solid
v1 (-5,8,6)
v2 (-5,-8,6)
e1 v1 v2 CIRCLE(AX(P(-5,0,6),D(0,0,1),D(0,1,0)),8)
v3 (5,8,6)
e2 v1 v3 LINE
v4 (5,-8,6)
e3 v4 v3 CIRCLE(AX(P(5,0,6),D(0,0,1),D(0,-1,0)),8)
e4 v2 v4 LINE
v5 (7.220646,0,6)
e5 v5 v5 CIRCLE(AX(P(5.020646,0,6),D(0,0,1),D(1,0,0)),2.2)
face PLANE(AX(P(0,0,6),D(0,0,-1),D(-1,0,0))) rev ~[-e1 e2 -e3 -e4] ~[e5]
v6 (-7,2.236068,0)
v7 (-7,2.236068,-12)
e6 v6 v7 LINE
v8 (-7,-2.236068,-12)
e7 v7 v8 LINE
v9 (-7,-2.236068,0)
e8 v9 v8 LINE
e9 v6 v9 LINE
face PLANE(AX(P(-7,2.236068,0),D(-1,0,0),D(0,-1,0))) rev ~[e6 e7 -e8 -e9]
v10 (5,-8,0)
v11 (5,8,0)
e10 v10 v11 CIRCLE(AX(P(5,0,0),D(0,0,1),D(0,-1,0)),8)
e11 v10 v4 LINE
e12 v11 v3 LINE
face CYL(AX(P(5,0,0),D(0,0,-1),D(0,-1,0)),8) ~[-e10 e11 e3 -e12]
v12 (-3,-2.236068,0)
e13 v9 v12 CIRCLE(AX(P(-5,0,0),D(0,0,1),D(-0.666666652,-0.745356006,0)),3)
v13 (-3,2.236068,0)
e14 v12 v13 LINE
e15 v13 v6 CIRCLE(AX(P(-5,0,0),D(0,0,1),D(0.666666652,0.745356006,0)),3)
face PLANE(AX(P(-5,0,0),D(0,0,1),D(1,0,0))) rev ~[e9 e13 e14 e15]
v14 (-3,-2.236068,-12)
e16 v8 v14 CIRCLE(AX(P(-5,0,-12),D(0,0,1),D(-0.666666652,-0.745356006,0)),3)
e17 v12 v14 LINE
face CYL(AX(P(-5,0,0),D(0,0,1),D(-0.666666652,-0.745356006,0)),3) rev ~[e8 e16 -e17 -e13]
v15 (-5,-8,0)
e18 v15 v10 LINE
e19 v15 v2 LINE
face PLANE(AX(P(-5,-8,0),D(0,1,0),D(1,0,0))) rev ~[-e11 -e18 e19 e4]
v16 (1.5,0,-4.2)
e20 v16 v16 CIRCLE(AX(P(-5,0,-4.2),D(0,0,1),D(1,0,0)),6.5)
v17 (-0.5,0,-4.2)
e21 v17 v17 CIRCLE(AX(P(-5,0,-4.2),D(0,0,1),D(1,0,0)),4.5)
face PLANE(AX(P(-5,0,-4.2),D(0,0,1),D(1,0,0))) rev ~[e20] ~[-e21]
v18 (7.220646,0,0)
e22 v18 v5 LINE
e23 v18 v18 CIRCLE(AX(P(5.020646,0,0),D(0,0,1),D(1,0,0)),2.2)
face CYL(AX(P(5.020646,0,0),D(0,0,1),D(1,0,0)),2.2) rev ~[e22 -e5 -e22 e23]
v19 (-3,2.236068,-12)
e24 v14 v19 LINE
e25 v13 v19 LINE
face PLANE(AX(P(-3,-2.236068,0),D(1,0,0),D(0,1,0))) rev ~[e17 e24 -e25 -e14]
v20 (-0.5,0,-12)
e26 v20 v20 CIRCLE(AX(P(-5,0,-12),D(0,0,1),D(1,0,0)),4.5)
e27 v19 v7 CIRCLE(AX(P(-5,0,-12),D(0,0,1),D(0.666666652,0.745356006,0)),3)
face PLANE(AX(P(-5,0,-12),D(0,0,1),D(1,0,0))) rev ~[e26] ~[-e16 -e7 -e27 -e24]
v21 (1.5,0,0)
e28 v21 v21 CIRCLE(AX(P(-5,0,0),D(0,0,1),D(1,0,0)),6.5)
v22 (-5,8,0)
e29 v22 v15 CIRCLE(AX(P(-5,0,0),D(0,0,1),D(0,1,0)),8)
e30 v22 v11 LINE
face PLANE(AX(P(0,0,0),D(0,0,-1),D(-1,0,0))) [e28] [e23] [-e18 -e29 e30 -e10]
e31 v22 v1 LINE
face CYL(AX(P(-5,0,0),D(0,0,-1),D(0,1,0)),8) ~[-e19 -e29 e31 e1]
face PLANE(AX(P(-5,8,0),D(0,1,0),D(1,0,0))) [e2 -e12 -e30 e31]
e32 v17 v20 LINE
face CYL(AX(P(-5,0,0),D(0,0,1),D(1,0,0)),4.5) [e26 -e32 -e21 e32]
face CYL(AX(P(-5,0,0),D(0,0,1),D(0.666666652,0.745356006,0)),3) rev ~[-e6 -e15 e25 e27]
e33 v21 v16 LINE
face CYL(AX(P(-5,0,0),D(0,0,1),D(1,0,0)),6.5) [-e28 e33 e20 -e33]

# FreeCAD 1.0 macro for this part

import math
import FreeCAD as App
import Part
import Sketcher
from FreeCAD import Vector

doc = App.newDocument("Part")
params = doc.addObject("Spreadsheet::Sheet", "Params")
for row, (alias, value) in enumerate([
    ("sketch1_radius", "3 mm"),
    ("pad1_length", "20 mm"),
    ("sketch2_diameter", "4.4 mm"),
    ("pad2_length", "20 mm"),
    ("sketch3_diameter", "12 mm"),
    ("pad3_length", "5 mm"),
    ("sketch4_diameter", "9 mm"),
    ("pad4_length", "12 mm"),
    ("sketch5_diameter", "13 mm"),
    ("pad5_length", "4.2 mm"),
    ("sketch6_radius", "8 mm"),
    ("sketch6_width", "10 mm"),
    ("pad6_length", "6 mm"),
], start=1):
    params.set(f"A{row}", alias)
    params.set(f"B{row}", "=" + value)
    params.setAlias(f"B{row}", alias)

body = doc.addObject("PartDesign::Body", "Body")

sketch1 = body.newObject("Sketcher::SketchObject", "Sketch")
sketch1.AttachmentSupport = (doc.getObject("XY_Plane"), [""])
sketch1.MapMode = "FlatFace"
sketch1.addGeometry(Part.LineSegment(Vector(-7, 2.2, 0), Vector(-7, -2.2, 0)), False)
sketch1.addGeometry(Part.ArcOfCircle(Part.Circle(Vector(-5, 0, 0), Vector(0, 0, 1), 3), math.radians(-132), math.radians(-48)), False)
sketch1.addGeometry(Part.LineSegment(Vector(-3, -2.2, 0), Vector(-3, 2.2, 0)), False)
sketch1.addGeometry(Part.ArcOfCircle(Part.Circle(Vector(-5, 0, 0), Vector(0, 0, 1), 3), math.radians(48), math.radians(132)), False)
sketch1.addConstraint(Sketcher.Constraint("Coincident", 0, 2, 1, 1))
sketch1.addConstraint(Sketcher.Constraint("Coincident", 1, 2, 2, 1))
sketch1.addConstraint(Sketcher.Constraint("Coincident", 2, 2, 3, 1))
sketch1.addConstraint(Sketcher.Constraint("Coincident", 3, 2, 0, 1))
sketch1.addConstraint(Sketcher.Constraint("Vertical", 0))
sketch1.addConstraint(Sketcher.Constraint("Vertical", 2))
sketch1.addConstraint(Sketcher.Constraint("Coincident", 3, 3, 1, 3))
sketch1.addConstraint(Sketcher.Constraint("Equal", 1, 3))
sketch1.addConstraint(Sketcher.Constraint("PointOnObject", 1, 3, -1))
sketch1.addConstraint(Sketcher.Constraint("Horizontal", 0, 2, 1, 2))
sketch1.addConstraint(Sketcher.Constraint("Radius", 1, 3.0))
sketch1.addConstraint(Sketcher.Constraint("DistanceX", 1, 3, -1, 1, 5.0))
sketch1.addConstraint(Sketcher.Constraint("DistanceX", 0, 2, -1, 1, 7.0))
sketch1.setExpression("Constraints[10]", "Params.sketch1_radius")
pad1 = body.newObject("PartDesign::Pad", "Pad")
pad1.Profile = sketch1
pad1.setExpression("Length", "Params.pad1_length")
pad1.Reversed = True
body2 = doc.addObject("PartDesign::Body", "Body001")
body2.AllowCompound = True

sketch2 = body2.newObject("Sketcher::SketchObject", "Sketch001")
sketch2.AttachmentSupport = (doc.getObject("XY_Plane001"), [""])
sketch2.MapMode = "FlatFace"
sketch2.addGeometry(Part.Circle(Vector(5, 0, 0), Vector(0, 0, 1), 2.2), False)
sketch2.addConstraint(Sketcher.Constraint("PointOnObject", 0, 3, -1))
sketch2.addConstraint(Sketcher.Constraint("Diameter", 0, 4.4))
sketch2.addConstraint(Sketcher.Constraint("DistanceX", -1, 1, 0, 3, 5.020646))
sketch2.setExpression("Constraints[1]", "Params.sketch2_diameter")
pad2 = body2.newObject("PartDesign::Pad", "Pad001")
pad2.Profile = sketch2
pad2.setExpression("Length", "Params.pad2_length")
pad2.Midplane = True
doc.recompute()

boolean = body2.newObject("PartDesign::Boolean", "Boolean")
boolean.Type = "Fuse"
boolean.addObjects([body])
body3 = doc.addObject("PartDesign::Body", "Body002")

sketch3 = body3.newObject("Sketcher::SketchObject", "Sketch002")
sketch3.AttachmentSupport = (doc.getObject("XY_Plane002"), [""])
sketch3.MapMode = "FlatFace"
sketch3.addGeometry(Part.Circle(Vector(5, 0, 0), Vector(0, 0, 1), 6), False)
sketch3.addConstraint(Sketcher.Constraint("PointOnObject", 0, 3, -1))
sketch3.addConstraint(Sketcher.Constraint("Diameter", 0, 12.0))
sketch3.addConstraint(Sketcher.Constraint("DistanceX", -1, 1, 0, 3, 5.0))
sketch3.setExpression("Constraints[1]", "Params.sketch3_diameter")
pad3 = body3.newObject("PartDesign::Pad", "Pad002")
pad3.Profile = sketch3
pad3.setExpression("Length", "Params.pad3_length")

sketch4 = body3.newObject("Sketcher::SketchObject", "Sketch003")
sketch4.AttachmentSupport = (doc.getObject("XY_Plane002"), [""])
sketch4.MapMode = "FlatFace"
sketch4.addGeometry(Part.Circle(Vector(-5, 0, 0), Vector(0, 0, 1), 4.5), False)
sketch4.addConstraint(Sketcher.Constraint("PointOnObject", 0, 3, -1))
sketch4.addConstraint(Sketcher.Constraint("Diameter", 0, 9.0))
sketch4.addConstraint(Sketcher.Constraint("DistanceX", 0, 3, -1, 1, 5.0))
sketch4.setExpression("Constraints[1]", "Params.sketch4_diameter")
pad4 = body3.newObject("PartDesign::Pad", "Pad003")
pad4.Profile = sketch4
pad4.setExpression("Length", "Params.pad4_length")
pad4.Reversed = True

sketch5 = body3.newObject("Sketcher::SketchObject", "Sketch004")
sketch5.AttachmentSupport = (doc.getObject("XY_Plane002"), [""])
sketch5.MapMode = "FlatFace"
sketch5.addGeometry(Part.Circle(Vector(-5, 0, 0), Vector(0, 0, 1), 6), False)
sketch5.addConstraint(Sketcher.Constraint("PointOnObject", 0, 3, -1))
sketch5.addConstraint(Sketcher.Constraint("Diameter", 0, 13.0))
sketch5.addConstraint(Sketcher.Constraint("DistanceX", 0, 3, -1, 1, 5.0))
sketch5.setExpression("Constraints[1]", "Params.sketch5_diameter")
pad5 = body3.newObject("PartDesign::Pad", "Pad004")
pad5.Profile = sketch5
pad5.setExpression("Length", "Params.pad5_length")
pad5.Reversed = True

sketch6 = body3.newObject("Sketcher::SketchObject", "Sketch005")
sketch6.AttachmentSupport = (doc.getObject("XY_Plane002"), [""])
sketch6.MapMode = "FlatFace"
sketch6.addGeometry(Part.LineSegment(Vector(5, 8, 0), Vector(-5, 8, 0)), False)
sketch6.addGeometry(Part.ArcOfCircle(Part.Circle(Vector(-5, 0, 0), Vector(0, 0, 1), 8), math.radians(90), math.radians(270)), False)
sketch6.addGeometry(Part.LineSegment(Vector(-5, -8, 0), Vector(5, -8, 0)), False)
sketch6.addGeometry(Part.ArcOfCircle(Part.Circle(Vector(5, 0, 0), Vector(0, 0, 1), 8), math.radians(-90), math.radians(90)), False)
sketch6.addConstraint(Sketcher.Constraint("Tangent", 0, 2, 1, 1))
sketch6.addConstraint(Sketcher.Constraint("Tangent", 1, 2, 2, 1))
sketch6.addConstraint(Sketcher.Constraint("Tangent", 2, 2, 3, 1))
sketch6.addConstraint(Sketcher.Constraint("Tangent", 3, 2, 0, 1))
sketch6.addConstraint(Sketcher.Constraint("Horizontal", 0))
sketch6.addConstraint(Sketcher.Constraint("Horizontal", 2))
sketch6.addConstraint(Sketcher.Constraint("Symmetric", 1, 3, 3, 3, -1, 1))
sketch6.addConstraint(Sketcher.Constraint("Radius", 1, 8.0))
sketch6.addConstraint(Sketcher.Constraint("DistanceX", 0, 2, 0, 1, 10.0))
sketch6.setExpression("Constraints[7]", "Params.sketch6_radius")
sketch6.setExpression("Constraints[8]", "Params.sketch6_width")
pad6 = body3.newObject("PartDesign::Pad", "Pad005")
pad6.Profile = sketch6
pad6.setExpression("Length", "Params.pad6_length")
doc.recompute()

boolean2 = body3.newObject("PartDesign::Boolean", "Boolean001")
boolean2.Type = "Cut"
boolean2.addObjects([body2])

doc.recompute()
